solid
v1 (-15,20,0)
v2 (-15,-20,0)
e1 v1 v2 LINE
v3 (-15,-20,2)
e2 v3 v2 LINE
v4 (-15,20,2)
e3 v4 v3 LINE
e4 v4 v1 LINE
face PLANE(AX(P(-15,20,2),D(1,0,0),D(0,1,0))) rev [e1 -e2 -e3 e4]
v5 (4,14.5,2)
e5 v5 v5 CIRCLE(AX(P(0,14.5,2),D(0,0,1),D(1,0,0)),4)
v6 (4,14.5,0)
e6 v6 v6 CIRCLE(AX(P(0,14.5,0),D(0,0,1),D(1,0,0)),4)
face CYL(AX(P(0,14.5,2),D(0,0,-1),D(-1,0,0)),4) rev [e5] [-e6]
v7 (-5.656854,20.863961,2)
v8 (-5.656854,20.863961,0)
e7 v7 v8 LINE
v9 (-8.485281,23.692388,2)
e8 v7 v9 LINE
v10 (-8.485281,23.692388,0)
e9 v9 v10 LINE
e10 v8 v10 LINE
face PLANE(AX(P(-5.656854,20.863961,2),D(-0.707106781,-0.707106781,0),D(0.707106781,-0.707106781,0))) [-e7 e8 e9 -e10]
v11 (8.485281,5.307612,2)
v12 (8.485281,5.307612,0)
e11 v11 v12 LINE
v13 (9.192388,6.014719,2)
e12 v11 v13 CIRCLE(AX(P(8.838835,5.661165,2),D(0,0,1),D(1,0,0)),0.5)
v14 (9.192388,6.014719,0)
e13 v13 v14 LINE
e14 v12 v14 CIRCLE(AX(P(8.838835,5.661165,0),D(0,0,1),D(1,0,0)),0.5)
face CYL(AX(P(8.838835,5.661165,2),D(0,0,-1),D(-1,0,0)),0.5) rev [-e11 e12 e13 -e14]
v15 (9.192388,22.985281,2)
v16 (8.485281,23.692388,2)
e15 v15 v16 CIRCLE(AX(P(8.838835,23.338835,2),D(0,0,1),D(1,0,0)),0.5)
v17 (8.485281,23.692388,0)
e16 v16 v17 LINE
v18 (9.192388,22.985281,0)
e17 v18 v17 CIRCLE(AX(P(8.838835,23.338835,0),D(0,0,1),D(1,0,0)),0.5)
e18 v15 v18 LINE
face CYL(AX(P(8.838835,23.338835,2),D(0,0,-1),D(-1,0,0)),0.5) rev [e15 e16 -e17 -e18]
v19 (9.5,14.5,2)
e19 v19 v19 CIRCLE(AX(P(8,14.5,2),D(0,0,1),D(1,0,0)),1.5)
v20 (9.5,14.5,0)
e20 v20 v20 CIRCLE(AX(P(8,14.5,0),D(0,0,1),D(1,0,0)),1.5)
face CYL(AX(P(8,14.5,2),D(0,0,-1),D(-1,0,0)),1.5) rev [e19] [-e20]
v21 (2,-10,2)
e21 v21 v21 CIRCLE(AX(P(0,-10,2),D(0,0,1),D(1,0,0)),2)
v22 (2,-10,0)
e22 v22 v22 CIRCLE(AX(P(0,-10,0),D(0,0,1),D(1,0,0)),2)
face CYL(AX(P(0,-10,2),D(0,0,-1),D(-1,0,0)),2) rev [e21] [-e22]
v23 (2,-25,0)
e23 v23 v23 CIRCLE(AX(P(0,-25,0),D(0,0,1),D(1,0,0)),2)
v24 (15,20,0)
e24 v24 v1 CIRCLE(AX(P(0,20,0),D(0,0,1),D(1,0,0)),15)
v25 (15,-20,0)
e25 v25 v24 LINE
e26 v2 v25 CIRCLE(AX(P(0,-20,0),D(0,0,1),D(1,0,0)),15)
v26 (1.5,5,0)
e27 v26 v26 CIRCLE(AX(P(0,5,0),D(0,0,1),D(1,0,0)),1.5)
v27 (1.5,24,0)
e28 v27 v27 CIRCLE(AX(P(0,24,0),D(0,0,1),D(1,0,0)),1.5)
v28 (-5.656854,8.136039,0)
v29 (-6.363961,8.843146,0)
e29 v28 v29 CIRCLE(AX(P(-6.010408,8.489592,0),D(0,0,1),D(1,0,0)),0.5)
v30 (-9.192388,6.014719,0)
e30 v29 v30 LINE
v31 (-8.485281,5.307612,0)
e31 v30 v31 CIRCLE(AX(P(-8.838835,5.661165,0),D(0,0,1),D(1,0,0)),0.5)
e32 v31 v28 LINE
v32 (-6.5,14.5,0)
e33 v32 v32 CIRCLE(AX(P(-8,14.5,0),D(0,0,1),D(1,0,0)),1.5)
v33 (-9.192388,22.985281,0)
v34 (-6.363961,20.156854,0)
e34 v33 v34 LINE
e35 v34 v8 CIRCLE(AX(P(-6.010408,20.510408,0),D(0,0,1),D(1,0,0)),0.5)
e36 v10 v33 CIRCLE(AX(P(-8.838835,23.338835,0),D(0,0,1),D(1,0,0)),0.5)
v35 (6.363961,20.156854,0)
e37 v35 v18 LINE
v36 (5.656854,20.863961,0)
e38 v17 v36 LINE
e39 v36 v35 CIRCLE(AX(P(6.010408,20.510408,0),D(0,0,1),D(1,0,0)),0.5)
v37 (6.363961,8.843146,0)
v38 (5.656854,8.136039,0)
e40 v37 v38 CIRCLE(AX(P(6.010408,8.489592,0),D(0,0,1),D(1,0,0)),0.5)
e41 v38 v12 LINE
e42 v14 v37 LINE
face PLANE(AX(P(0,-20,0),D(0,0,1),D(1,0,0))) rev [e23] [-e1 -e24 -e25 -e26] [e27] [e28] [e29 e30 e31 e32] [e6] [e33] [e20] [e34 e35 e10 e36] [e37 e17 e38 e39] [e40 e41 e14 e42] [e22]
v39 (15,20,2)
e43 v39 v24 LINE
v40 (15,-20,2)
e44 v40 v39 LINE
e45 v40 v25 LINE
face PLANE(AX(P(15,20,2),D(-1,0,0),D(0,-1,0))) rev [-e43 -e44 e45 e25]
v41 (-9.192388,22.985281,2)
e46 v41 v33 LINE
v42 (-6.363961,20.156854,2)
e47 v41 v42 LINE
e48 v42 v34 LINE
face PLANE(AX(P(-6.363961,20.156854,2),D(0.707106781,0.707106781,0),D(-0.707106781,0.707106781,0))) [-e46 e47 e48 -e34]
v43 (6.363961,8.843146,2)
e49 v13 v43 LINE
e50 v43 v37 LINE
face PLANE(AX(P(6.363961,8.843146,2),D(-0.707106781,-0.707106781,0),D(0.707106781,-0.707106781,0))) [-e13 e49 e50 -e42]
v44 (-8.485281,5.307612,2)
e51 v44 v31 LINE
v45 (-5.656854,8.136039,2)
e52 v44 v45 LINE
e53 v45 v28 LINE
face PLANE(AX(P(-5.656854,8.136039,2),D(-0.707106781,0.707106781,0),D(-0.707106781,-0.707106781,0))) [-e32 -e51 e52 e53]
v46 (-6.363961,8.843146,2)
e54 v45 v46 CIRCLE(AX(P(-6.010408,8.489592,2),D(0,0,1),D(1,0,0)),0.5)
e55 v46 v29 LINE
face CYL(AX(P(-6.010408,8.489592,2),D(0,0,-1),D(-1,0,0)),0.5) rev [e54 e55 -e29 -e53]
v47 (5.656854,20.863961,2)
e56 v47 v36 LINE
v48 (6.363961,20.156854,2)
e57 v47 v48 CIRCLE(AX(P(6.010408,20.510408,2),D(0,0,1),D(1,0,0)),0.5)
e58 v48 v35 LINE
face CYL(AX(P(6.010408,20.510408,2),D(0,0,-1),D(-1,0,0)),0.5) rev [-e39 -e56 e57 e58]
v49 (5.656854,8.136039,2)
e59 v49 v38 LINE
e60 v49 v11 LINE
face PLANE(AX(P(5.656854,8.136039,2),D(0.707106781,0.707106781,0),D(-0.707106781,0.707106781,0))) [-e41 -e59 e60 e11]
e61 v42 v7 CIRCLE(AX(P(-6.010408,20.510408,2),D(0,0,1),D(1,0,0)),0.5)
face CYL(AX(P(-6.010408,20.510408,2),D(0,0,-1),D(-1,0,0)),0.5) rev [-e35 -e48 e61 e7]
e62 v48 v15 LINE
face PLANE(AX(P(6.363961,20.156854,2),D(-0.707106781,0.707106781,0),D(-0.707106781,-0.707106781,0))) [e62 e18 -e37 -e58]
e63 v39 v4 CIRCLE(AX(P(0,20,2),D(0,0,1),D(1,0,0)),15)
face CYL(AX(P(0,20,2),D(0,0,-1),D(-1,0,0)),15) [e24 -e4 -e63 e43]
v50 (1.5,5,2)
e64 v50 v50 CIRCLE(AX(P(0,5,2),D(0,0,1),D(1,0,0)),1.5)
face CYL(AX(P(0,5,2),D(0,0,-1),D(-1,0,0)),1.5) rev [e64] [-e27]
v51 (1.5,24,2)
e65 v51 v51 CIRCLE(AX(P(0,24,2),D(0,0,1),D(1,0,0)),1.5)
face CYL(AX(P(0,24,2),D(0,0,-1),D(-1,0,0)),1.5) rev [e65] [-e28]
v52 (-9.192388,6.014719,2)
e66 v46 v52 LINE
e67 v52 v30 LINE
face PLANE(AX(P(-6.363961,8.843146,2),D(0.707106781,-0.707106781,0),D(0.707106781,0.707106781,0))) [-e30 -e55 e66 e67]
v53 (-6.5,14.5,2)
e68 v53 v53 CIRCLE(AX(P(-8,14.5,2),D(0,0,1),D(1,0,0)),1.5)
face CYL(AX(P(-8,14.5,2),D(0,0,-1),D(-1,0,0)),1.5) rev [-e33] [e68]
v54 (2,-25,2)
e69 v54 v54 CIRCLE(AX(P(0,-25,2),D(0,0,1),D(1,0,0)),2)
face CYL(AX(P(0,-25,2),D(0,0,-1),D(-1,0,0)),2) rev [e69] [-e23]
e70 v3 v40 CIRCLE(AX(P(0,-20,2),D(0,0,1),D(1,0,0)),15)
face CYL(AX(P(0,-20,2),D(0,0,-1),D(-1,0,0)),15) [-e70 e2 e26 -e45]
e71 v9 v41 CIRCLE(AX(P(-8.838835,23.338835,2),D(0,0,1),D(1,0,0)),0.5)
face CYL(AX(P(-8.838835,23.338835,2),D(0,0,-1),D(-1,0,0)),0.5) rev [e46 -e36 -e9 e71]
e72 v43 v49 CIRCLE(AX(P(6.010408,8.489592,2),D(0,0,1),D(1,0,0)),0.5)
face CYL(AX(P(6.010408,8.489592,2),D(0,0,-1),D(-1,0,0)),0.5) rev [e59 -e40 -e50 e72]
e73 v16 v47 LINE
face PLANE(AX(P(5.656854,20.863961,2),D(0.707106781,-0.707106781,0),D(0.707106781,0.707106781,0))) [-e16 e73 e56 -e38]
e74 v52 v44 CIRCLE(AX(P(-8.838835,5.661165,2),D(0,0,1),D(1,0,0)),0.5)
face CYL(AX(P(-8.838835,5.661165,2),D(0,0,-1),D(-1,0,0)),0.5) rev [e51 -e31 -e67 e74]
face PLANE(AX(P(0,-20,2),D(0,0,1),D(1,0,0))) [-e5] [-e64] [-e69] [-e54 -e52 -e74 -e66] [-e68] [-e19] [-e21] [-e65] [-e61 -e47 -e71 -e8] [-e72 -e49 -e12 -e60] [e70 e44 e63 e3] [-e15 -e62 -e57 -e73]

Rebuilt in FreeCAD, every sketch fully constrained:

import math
import FreeCAD as App
import Part
import Sketcher
from FreeCAD import Vector

doc = App.newDocument("Part")
body = doc.addObject("PartDesign::Body", "Body")

# Sketch on XY plane
sketch1 = body.newObject("Sketcher::SketchObject", "Sketch")
sketch1.AttachmentSupport = (doc.getObject("XY_Plane"), [""])
sketch1.MapMode = "FlatFace"
sketch1.addGeometry([
    Part.LineSegment(Vector(-15, 20, 0), Vector(-15, -20, 0)),  # 0
    Part.ArcOfCircle(Part.Circle(Vector(0, -20, 0), Vector(0, 0, 1), 15), math.radians(180), math.radians(360)),  # 1
    Part.LineSegment(Vector(15, -20, 0), Vector(15, 20, 0)),  # 2
    Part.ArcOfCircle(Part.Circle(Vector(0, 20, 0), Vector(0, 0, 1), 15), math.radians(0), math.radians(180)),  # 3
    Part.Circle(Vector(0, -25, 0), Vector(0, 0, 1), 2),  # 4
    Part.Circle(Vector(0, -10, 0), Vector(0, 0, 1), 2),  # 5
    Part.LineSegment(Vector(-9.192388, 6.014719, 0), Vector(-6.363961, 8.843146, 0)),  # 6
    Part.ArcOfCircle(Part.Circle(Vector(-6.010408, 8.489592, 0), Vector(0, 0, 1), 0.5), math.radians(-45), math.radians(135)),  # 7
    Part.LineSegment(Vector(-5.656854, 8.136039, 0), Vector(-8.485281, 5.307612, 0)),  # 8
    Part.ArcOfCircle(Part.Circle(Vector(-8.838835, 5.661165, 0), Vector(0, 0, 1), 0.5), math.radians(135), math.radians(315)),  # 9
    Part.Circle(Vector(-8, 14.5, 0), Vector(0, 0, 1), 1.5),  # 10
    Part.LineSegment(Vector(-8.485281, 23.692388, 0), Vector(-5.656854, 20.863961, 0)),  # 11
    Part.ArcOfCircle(Part.Circle(Vector(-6.010408, 20.510408, 0), Vector(0, 0, 1), 0.5), math.radians(-135), math.radians(45)),  # 12
    Part.LineSegment(Vector(-6.363961, 20.156854, 0), Vector(-9.192388, 22.985281, 0)),  # 13
    Part.ArcOfCircle(Part.Circle(Vector(-8.838835, 23.338835, 0), Vector(0, 0, 1), 0.5), math.radians(45), math.radians(225)),  # 14
    Part.Circle(Vector(0, 5, 0), Vector(0, 0, 1), 1.5),  # 15
    Part.LineSegment(Vector(8.485281, 5.307612, 0), Vector(5.656854, 8.136039, 0)),  # 16
    Part.ArcOfCircle(Part.Circle(Vector(6.010408, 8.489592, 0), Vector(0, 0, 1), 0.5), math.radians(45), math.radians(225)),  # 17
    Part.LineSegment(Vector(6.363961, 8.843146, 0), Vector(9.192388, 6.014719, 0)),  # 18
    Part.ArcOfCircle(Part.Circle(Vector(8.838835, 5.661165, 0), Vector(0, 0, 1), 0.5), math.radians(-135), math.radians(45)),  # 19
    Part.Circle(Vector(0, 14.5, 0), Vector(0, 0, 1), 4),  # 20
    Part.Circle(Vector(0, 24, 0), Vector(0, 0, 1), 1.5),  # 21
    Part.Circle(Vector(8, 14.5, 0), Vector(0, 0, 1), 1.5),  # 22
    Part.LineSegment(Vector(9.192388, 22.985281, 0), Vector(6.363961, 20.156854, 0)),  # 23
    Part.ArcOfCircle(Part.Circle(Vector(6.010408, 20.510408, 0), Vector(0, 0, 1), 0.5), math.radians(135), math.radians(315)),  # 24
    Part.LineSegment(Vector(5.656854, 20.863961, 0), Vector(8.485281, 23.692388, 0)),  # 25
    Part.ArcOfCircle(Part.Circle(Vector(8.838835, 23.338835, 0), Vector(0, 0, 1), 0.5), math.radians(-45), math.radians(135)),  # 26
], False)
sketch1.addConstraint([
    Sketcher.Constraint("Tangent", 0, 2, 1, 1),
    Sketcher.Constraint("Tangent", 1, 2, 2, 1),
    Sketcher.Constraint("Tangent", 2, 2, 3, 1),
    Sketcher.Constraint("Tangent", 3, 2, 0, 1),
    Sketcher.Constraint("Tangent", 6, 2, 7, 2),
    Sketcher.Constraint("Tangent", 7, 1, 8, 1),
    Sketcher.Constraint("Tangent", 8, 2, 9, 2),
    Sketcher.Constraint("Tangent", 9, 1, 6, 1),
    Sketcher.Constraint("Tangent", 11, 2, 12, 2),
    Sketcher.Constraint("Tangent", 12, 1, 13, 1),
    Sketcher.Constraint("Tangent", 13, 2, 14, 2),
    Sketcher.Constraint("Tangent", 14, 1, 11, 1),
    Sketcher.Constraint("Tangent", 16, 2, 17, 2),
    Sketcher.Constraint("Tangent", 17, 1, 18, 1),
    Sketcher.Constraint("Tangent", 18, 2, 19, 2),
    Sketcher.Constraint("Tangent", 19, 1, 16, 1),
    Sketcher.Constraint("Tangent", 23, 2, 24, 2),
    Sketcher.Constraint("Tangent", 24, 1, 25, 1),
    Sketcher.Constraint("Tangent", 25, 2, 26, 2),
    Sketcher.Constraint("Tangent", 26, 1, 23, 1),
    Sketcher.Constraint("Vertical", 0),
    Sketcher.Constraint("Vertical", 2),
    Sketcher.Constraint("Equal", 4, 5),
    Sketcher.Constraint("Equal", 7, 9),
    Sketcher.Constraint("Equal", 9, 12),
    Sketcher.Constraint("Equal", 12, 14),
    Sketcher.Constraint("Equal", 10, 15),
    Sketcher.Constraint("Equal", 14, 17),
    Sketcher.Constraint("Equal", 17, 19),
    Sketcher.Constraint("Equal", 15, 21),
    Sketcher.Constraint("Equal", 21, 22),
    Sketcher.Constraint("Equal", 19, 24),
    Sketcher.Constraint("Equal", 24, 26),
    Sketcher.Constraint("Symmetric", 1, 3, 3, 3, -1, 1),
    Sketcher.Constraint("Symmetric", 7, 3, 17, 3, -2),
    Sketcher.Constraint("Symmetric", 9, 3, 19, 3, -2),
    Sketcher.Constraint("Symmetric", 10, 3, 22, 3, -2),
    Sketcher.Constraint("Symmetric", 12, 3, 24, 3, -2),
    Sketcher.Constraint("Symmetric", 14, 3, 26, 3, -2),
    Sketcher.Constraint("PointOnObject", 4, 3, -2),
    Sketcher.Constraint("PointOnObject", 5, 3, -2),
    Sketcher.Constraint("PointOnObject", 15, 3, -2),
    Sketcher.Constraint("PointOnObject", 20, 3, -2),
    Sketcher.Constraint("PointOnObject", 21, 3, -2),
    Sketcher.Constraint("Perpendicular", 8, 11),
    Sketcher.Constraint("Parallel", 13, 16),
    Sketcher.Constraint("Horizontal", 10, 3, 20, 3),
    Sketcher.Constraint("Vertical", 7, 3, 12, 3),
    Sketcher.Constraint("Vertical", 9, 3, 14, 3),
    Sketcher.Constraint("Diameter", 4, 4.0),
    Sketcher.Constraint("Diameter", 10, 3.0),
    Sketcher.Constraint("Diameter", 20, 8.0),
    Sketcher.Constraint("Radius", 1, 15.0),
    Sketcher.Constraint("Radius", 7, 0.5),
    Sketcher.Constraint("DistanceY", 0, 2, 0, 1, 40.0),
    Sketcher.Constraint("Distance", 6, 4.0),
    Sketcher.Constraint("DistanceY", 4, 3, -1, 1, 25.0),
    Sketcher.Constraint("DistanceY", 5, 3, -1, 1, 10.0),
    Sketcher.Constraint("DistanceX", 10, 3, -1, 1, 8.0),
    Sketcher.Constraint("DistanceY", -1, 1, 15, 3, 5.0),
    Sketcher.Constraint("DistanceY", -1, 1, 21, 3, 24.0),
    Sketcher.Constraint("DistanceY", -1, 1, 10, 3, 14.5),
    Sketcher.Constraint("DistanceX", 6, 2, -1, 1, 6.363961),
    Sketcher.Constraint("DistanceY", -1, 1, 7, 1, 8.136039),
    Sketcher.Constraint("DistanceY", -1, 1, 11, 2, 20.863961),
])
pad1 = body.newObject("PartDesign::Pad", "Pad")
pad1.Profile = sketch1
pad1.Length = 2

doc.recompute()
